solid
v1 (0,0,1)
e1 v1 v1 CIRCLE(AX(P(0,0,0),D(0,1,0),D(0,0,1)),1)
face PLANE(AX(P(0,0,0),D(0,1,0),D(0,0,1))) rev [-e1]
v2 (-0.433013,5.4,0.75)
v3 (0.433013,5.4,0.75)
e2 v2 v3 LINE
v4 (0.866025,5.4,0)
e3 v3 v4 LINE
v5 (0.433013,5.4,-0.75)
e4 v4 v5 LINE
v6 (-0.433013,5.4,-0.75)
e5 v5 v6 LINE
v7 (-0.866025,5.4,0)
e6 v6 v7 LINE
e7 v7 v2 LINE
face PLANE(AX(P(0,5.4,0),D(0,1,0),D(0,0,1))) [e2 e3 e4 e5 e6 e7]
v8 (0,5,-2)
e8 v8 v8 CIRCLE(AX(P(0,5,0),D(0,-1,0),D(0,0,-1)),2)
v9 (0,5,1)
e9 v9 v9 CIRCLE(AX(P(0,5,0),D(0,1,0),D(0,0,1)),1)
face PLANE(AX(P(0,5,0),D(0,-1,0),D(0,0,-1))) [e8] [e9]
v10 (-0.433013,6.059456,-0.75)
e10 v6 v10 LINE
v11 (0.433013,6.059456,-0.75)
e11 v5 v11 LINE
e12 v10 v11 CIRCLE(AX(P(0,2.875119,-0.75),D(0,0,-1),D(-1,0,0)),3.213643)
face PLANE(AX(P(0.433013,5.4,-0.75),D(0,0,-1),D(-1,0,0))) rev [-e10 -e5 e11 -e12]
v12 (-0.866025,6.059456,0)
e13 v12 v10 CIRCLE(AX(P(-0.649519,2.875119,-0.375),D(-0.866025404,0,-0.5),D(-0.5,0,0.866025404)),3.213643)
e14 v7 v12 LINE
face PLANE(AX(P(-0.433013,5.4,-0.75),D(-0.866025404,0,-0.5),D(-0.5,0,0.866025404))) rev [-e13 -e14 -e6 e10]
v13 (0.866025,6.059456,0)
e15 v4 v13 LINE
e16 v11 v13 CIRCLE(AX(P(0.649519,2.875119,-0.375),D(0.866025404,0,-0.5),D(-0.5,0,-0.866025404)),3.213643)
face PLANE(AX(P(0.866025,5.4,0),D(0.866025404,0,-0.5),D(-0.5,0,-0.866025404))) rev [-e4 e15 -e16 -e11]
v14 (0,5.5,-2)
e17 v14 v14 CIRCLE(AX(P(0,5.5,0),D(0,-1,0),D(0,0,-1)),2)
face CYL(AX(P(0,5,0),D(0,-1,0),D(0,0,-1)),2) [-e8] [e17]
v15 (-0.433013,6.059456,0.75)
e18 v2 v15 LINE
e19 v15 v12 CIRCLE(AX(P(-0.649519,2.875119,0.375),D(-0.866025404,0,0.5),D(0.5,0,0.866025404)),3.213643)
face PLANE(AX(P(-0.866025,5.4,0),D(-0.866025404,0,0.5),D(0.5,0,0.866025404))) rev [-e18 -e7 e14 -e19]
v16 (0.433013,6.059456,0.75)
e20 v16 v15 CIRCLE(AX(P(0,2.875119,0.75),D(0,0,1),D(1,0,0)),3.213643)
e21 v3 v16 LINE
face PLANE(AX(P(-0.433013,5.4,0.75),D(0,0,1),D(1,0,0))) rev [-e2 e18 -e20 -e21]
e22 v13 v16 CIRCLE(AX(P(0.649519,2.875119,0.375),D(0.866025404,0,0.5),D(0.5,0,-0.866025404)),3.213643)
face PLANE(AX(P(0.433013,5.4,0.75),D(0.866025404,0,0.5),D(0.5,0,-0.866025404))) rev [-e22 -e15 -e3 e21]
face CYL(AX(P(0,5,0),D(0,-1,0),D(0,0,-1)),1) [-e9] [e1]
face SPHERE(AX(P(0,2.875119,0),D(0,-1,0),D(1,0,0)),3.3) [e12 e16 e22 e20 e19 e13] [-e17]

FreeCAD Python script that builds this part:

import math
import FreeCAD as App
import Part
import Sketcher
Q = App.Units.Quantity

doc = App.newDocument("Part")
params = doc.addObject("Spreadsheet::Sheet", "Params")
for row, (alias, value) in enumerate([
    ("sketch1_diameter", "2 mm"),
    ("pad1_length", "5 mm"),
    ("sketch2_radius", "3.3 mm"),
    ("sketch2_width", "2 mm"),
    ("sketch2_height", "0.5 mm"),
    ("revolution_angle", "360 deg"),
    ("pocket1_length", "1.1 mm"),
], start=1):
    params.set(f"A{row}", alias)
    params.set(f"B{row}", "=" + value)
    params.setAlias(f"B{row}", alias)

body = doc.addObject("PartDesign::Body", "Body")

# Sketch on XZ plane
sketch1 = body.newObject("Sketcher::SketchObject", "Sketch")
sketch1.AttachmentSupport = (doc.getObject("XZ_Plane"), [""])
sketch1.MapMode = "FlatFace"
sketch1.addGeometry(Part.Circle(App.Vector(0, 0, 0), App.Vector(0, 0, 1), 1), False)
sketch1.addConstraint(Sketcher.Constraint("Coincident", 0, 3, -1, 1))
sketch1.addConstraint(Sketcher.Constraint("Diameter", 0, Q("2 mm")))
sketch1.setExpression("Constraints[1]", "Params.sketch1_diameter")
pad1 = body.newObject("PartDesign::Pad", "Pad")
pad1.Profile = sketch1
pad1.setExpression("Length", "Params.pad1_length")
pad1.Reversed = True

# Sketch on XY plane
sketch2 = body.newObject("Sketcher::SketchObject", "Sketch001")
sketch2.AttachmentSupport = (doc.getObject("XY_Plane"), [""])
sketch2.MapMode = "FlatFace"
sketch2.addGeometry(Part.LineSegment(App.Vector(-2, 5, 0), App.Vector(0, 5, 0)), False)
sketch2.addGeometry(Part.LineSegment(App.Vector(0, 5, 0), App.Vector(0, 6.2, 0)), False)
sketch2.addGeometry(Part.ArcOfCircle(Part.Circle(App.Vector(0, 2.9, 0), App.Vector(0, 0, 1), 3.3), math.radians(90), math.radians(127)), False)
sketch2.addGeometry(Part.LineSegment(App.Vector(-2, 5.5, 0), App.Vector(-2, 5, 0)), False)
sketch2.addConstraint(Sketcher.Constraint("Coincident", 0, 2, 1, 1))
sketch2.addConstraint(Sketcher.Constraint("Coincident", 1, 2, 2, 1))
sketch2.addConstraint(Sketcher.Constraint("Coincident", 2, 2, 3, 1))
sketch2.addConstraint(Sketcher.Constraint("Coincident", 3, 2, 0, 1))
sketch2.addConstraint(Sketcher.Constraint("Horizontal", 0))
sketch2.addConstraint(Sketcher.Constraint("Vertical", 1))
sketch2.addConstraint(Sketcher.Constraint("Vertical", 3))
sketch2.addConstraint(Sketcher.Constraint("PointOnObject", 2, 3, -2))
sketch2.addConstraint(Sketcher.Constraint("PointOnObject", 0, 2, -2))
sketch2.addConstraint(Sketcher.Constraint("Radius", 2, Q("3.3 mm")))
sketch2.addConstraint(Sketcher.Constraint("DistanceX", 0, 1, 0, 2, Q("2 mm")))
sketch2.addConstraint(Sketcher.Constraint("DistanceY", 3, 2, 3, 1, Q("0.5 mm")))
sketch2.addConstraint(Sketcher.Constraint("DistanceY", -1, 1, 0, 2, Q("5 mm")))
sketch2.setExpression("Constraints[9]", "Params.sketch2_radius")
sketch2.setExpression("Constraints[10]", "Params.sketch2_width")
sketch2.setExpression("Constraints[11]", "Params.sketch2_height")
revolution = body.newObject("PartDesign::Revolution", "Revolution")
revolution.Profile = sketch2
revolution.ReferenceAxis = (sketch2, ["V_Axis"])
revolution.setExpression("Angle", "Params.revolution_angle")

# Sketch on XZ plane
sketch3 = body.newObject("Sketcher::SketchObject", "Sketch002")
sketch3.AttachmentSupport = (doc.getObject("XZ_Plane"), [""])
sketch3.MapMode = "FlatFace"
sketch3.AttachmentOffset = App.Placement(App.Vector(0, 0, -6.5), App.Rotation())
sketch3.addGeometry(Part.LineSegment(App.Vector(0.4, 0.8, 0), App.Vector(0.9, 0, 0)), False)
sketch3.addGeometry(Part.LineSegment(App.Vector(0.9, 0, 0), App.Vector(0.4, -0.8, 0)), False)
sketch3.addGeometry(Part.LineSegment(App.Vector(0.4, -0.8, 0), App.Vector(-0.4, -0.8, 0)), False)
sketch3.addGeometry(Part.LineSegment(App.Vector(-0.4, -0.8, 0), App.Vector(-0.9, 0, 0)), False)
sketch3.addGeometry(Part.LineSegment(App.Vector(-0.9, 0, 0), App.Vector(-0.4, 0.8, 0)), False)
sketch3.addGeometry(Part.LineSegment(App.Vector(-0.4, 0.8, 0), App.Vector(0.4, 0.8, 0)), False)
sketch3.addConstraint(Sketcher.Constraint("Coincident", 0, 2, 1, 1))
sketch3.addConstraint(Sketcher.Constraint("Coincident", 1, 2, 2, 1))
sketch3.addConstraint(Sketcher.Constraint("Coincident", 2, 2, 3, 1))
sketch3.addConstraint(Sketcher.Constraint("Coincident", 3, 2, 4, 1))
sketch3.addConstraint(Sketcher.Constraint("Coincident", 4, 2, 5, 1))
sketch3.addConstraint(Sketcher.Constraint("Coincident", 5, 2, 0, 1))
sketch3.addConstraint(Sketcher.Constraint("Horizontal", 2))
sketch3.addConstraint(Sketcher.Constraint("Horizontal", 5))
sketch3.addConstraint(Sketcher.Constraint("Symmetric", 0, 2, 3, 2, -1, 1))
sketch3.addConstraint(Sketcher.Constraint("Symmetric", 1, 2, 4, 2, -1, 1))
sketch3.addConstraint(Sketcher.Constraint("PointOnObject", 0, 2, -1))
sketch3.addConstraint(Sketcher.Constraint("Parallel", 0, 3))
sketch3.addConstraint(Sketcher.Constraint("Vertical", 2, 2, 4, 2))
sketch3.addConstraint(Sketcher.Constraint("Angle", 0, Q("-60 deg")))
sketch3.addConstraint(Sketcher.Constraint("DistanceY", 2, 2, 4, 2, Q("1.5 mm")))
sketch3.addConstraint(Sketcher.Constraint("DistanceX", 2, 2, 2, 1, Q("0.866025 mm")))
pocket1 = body.newObject("PartDesign::Pocket", "Pocket")
pocket1.Profile = sketch3
pocket1.setExpression("Length", "Params.pocket1_length")
pocket1.Reversed = True

doc.recompute()
